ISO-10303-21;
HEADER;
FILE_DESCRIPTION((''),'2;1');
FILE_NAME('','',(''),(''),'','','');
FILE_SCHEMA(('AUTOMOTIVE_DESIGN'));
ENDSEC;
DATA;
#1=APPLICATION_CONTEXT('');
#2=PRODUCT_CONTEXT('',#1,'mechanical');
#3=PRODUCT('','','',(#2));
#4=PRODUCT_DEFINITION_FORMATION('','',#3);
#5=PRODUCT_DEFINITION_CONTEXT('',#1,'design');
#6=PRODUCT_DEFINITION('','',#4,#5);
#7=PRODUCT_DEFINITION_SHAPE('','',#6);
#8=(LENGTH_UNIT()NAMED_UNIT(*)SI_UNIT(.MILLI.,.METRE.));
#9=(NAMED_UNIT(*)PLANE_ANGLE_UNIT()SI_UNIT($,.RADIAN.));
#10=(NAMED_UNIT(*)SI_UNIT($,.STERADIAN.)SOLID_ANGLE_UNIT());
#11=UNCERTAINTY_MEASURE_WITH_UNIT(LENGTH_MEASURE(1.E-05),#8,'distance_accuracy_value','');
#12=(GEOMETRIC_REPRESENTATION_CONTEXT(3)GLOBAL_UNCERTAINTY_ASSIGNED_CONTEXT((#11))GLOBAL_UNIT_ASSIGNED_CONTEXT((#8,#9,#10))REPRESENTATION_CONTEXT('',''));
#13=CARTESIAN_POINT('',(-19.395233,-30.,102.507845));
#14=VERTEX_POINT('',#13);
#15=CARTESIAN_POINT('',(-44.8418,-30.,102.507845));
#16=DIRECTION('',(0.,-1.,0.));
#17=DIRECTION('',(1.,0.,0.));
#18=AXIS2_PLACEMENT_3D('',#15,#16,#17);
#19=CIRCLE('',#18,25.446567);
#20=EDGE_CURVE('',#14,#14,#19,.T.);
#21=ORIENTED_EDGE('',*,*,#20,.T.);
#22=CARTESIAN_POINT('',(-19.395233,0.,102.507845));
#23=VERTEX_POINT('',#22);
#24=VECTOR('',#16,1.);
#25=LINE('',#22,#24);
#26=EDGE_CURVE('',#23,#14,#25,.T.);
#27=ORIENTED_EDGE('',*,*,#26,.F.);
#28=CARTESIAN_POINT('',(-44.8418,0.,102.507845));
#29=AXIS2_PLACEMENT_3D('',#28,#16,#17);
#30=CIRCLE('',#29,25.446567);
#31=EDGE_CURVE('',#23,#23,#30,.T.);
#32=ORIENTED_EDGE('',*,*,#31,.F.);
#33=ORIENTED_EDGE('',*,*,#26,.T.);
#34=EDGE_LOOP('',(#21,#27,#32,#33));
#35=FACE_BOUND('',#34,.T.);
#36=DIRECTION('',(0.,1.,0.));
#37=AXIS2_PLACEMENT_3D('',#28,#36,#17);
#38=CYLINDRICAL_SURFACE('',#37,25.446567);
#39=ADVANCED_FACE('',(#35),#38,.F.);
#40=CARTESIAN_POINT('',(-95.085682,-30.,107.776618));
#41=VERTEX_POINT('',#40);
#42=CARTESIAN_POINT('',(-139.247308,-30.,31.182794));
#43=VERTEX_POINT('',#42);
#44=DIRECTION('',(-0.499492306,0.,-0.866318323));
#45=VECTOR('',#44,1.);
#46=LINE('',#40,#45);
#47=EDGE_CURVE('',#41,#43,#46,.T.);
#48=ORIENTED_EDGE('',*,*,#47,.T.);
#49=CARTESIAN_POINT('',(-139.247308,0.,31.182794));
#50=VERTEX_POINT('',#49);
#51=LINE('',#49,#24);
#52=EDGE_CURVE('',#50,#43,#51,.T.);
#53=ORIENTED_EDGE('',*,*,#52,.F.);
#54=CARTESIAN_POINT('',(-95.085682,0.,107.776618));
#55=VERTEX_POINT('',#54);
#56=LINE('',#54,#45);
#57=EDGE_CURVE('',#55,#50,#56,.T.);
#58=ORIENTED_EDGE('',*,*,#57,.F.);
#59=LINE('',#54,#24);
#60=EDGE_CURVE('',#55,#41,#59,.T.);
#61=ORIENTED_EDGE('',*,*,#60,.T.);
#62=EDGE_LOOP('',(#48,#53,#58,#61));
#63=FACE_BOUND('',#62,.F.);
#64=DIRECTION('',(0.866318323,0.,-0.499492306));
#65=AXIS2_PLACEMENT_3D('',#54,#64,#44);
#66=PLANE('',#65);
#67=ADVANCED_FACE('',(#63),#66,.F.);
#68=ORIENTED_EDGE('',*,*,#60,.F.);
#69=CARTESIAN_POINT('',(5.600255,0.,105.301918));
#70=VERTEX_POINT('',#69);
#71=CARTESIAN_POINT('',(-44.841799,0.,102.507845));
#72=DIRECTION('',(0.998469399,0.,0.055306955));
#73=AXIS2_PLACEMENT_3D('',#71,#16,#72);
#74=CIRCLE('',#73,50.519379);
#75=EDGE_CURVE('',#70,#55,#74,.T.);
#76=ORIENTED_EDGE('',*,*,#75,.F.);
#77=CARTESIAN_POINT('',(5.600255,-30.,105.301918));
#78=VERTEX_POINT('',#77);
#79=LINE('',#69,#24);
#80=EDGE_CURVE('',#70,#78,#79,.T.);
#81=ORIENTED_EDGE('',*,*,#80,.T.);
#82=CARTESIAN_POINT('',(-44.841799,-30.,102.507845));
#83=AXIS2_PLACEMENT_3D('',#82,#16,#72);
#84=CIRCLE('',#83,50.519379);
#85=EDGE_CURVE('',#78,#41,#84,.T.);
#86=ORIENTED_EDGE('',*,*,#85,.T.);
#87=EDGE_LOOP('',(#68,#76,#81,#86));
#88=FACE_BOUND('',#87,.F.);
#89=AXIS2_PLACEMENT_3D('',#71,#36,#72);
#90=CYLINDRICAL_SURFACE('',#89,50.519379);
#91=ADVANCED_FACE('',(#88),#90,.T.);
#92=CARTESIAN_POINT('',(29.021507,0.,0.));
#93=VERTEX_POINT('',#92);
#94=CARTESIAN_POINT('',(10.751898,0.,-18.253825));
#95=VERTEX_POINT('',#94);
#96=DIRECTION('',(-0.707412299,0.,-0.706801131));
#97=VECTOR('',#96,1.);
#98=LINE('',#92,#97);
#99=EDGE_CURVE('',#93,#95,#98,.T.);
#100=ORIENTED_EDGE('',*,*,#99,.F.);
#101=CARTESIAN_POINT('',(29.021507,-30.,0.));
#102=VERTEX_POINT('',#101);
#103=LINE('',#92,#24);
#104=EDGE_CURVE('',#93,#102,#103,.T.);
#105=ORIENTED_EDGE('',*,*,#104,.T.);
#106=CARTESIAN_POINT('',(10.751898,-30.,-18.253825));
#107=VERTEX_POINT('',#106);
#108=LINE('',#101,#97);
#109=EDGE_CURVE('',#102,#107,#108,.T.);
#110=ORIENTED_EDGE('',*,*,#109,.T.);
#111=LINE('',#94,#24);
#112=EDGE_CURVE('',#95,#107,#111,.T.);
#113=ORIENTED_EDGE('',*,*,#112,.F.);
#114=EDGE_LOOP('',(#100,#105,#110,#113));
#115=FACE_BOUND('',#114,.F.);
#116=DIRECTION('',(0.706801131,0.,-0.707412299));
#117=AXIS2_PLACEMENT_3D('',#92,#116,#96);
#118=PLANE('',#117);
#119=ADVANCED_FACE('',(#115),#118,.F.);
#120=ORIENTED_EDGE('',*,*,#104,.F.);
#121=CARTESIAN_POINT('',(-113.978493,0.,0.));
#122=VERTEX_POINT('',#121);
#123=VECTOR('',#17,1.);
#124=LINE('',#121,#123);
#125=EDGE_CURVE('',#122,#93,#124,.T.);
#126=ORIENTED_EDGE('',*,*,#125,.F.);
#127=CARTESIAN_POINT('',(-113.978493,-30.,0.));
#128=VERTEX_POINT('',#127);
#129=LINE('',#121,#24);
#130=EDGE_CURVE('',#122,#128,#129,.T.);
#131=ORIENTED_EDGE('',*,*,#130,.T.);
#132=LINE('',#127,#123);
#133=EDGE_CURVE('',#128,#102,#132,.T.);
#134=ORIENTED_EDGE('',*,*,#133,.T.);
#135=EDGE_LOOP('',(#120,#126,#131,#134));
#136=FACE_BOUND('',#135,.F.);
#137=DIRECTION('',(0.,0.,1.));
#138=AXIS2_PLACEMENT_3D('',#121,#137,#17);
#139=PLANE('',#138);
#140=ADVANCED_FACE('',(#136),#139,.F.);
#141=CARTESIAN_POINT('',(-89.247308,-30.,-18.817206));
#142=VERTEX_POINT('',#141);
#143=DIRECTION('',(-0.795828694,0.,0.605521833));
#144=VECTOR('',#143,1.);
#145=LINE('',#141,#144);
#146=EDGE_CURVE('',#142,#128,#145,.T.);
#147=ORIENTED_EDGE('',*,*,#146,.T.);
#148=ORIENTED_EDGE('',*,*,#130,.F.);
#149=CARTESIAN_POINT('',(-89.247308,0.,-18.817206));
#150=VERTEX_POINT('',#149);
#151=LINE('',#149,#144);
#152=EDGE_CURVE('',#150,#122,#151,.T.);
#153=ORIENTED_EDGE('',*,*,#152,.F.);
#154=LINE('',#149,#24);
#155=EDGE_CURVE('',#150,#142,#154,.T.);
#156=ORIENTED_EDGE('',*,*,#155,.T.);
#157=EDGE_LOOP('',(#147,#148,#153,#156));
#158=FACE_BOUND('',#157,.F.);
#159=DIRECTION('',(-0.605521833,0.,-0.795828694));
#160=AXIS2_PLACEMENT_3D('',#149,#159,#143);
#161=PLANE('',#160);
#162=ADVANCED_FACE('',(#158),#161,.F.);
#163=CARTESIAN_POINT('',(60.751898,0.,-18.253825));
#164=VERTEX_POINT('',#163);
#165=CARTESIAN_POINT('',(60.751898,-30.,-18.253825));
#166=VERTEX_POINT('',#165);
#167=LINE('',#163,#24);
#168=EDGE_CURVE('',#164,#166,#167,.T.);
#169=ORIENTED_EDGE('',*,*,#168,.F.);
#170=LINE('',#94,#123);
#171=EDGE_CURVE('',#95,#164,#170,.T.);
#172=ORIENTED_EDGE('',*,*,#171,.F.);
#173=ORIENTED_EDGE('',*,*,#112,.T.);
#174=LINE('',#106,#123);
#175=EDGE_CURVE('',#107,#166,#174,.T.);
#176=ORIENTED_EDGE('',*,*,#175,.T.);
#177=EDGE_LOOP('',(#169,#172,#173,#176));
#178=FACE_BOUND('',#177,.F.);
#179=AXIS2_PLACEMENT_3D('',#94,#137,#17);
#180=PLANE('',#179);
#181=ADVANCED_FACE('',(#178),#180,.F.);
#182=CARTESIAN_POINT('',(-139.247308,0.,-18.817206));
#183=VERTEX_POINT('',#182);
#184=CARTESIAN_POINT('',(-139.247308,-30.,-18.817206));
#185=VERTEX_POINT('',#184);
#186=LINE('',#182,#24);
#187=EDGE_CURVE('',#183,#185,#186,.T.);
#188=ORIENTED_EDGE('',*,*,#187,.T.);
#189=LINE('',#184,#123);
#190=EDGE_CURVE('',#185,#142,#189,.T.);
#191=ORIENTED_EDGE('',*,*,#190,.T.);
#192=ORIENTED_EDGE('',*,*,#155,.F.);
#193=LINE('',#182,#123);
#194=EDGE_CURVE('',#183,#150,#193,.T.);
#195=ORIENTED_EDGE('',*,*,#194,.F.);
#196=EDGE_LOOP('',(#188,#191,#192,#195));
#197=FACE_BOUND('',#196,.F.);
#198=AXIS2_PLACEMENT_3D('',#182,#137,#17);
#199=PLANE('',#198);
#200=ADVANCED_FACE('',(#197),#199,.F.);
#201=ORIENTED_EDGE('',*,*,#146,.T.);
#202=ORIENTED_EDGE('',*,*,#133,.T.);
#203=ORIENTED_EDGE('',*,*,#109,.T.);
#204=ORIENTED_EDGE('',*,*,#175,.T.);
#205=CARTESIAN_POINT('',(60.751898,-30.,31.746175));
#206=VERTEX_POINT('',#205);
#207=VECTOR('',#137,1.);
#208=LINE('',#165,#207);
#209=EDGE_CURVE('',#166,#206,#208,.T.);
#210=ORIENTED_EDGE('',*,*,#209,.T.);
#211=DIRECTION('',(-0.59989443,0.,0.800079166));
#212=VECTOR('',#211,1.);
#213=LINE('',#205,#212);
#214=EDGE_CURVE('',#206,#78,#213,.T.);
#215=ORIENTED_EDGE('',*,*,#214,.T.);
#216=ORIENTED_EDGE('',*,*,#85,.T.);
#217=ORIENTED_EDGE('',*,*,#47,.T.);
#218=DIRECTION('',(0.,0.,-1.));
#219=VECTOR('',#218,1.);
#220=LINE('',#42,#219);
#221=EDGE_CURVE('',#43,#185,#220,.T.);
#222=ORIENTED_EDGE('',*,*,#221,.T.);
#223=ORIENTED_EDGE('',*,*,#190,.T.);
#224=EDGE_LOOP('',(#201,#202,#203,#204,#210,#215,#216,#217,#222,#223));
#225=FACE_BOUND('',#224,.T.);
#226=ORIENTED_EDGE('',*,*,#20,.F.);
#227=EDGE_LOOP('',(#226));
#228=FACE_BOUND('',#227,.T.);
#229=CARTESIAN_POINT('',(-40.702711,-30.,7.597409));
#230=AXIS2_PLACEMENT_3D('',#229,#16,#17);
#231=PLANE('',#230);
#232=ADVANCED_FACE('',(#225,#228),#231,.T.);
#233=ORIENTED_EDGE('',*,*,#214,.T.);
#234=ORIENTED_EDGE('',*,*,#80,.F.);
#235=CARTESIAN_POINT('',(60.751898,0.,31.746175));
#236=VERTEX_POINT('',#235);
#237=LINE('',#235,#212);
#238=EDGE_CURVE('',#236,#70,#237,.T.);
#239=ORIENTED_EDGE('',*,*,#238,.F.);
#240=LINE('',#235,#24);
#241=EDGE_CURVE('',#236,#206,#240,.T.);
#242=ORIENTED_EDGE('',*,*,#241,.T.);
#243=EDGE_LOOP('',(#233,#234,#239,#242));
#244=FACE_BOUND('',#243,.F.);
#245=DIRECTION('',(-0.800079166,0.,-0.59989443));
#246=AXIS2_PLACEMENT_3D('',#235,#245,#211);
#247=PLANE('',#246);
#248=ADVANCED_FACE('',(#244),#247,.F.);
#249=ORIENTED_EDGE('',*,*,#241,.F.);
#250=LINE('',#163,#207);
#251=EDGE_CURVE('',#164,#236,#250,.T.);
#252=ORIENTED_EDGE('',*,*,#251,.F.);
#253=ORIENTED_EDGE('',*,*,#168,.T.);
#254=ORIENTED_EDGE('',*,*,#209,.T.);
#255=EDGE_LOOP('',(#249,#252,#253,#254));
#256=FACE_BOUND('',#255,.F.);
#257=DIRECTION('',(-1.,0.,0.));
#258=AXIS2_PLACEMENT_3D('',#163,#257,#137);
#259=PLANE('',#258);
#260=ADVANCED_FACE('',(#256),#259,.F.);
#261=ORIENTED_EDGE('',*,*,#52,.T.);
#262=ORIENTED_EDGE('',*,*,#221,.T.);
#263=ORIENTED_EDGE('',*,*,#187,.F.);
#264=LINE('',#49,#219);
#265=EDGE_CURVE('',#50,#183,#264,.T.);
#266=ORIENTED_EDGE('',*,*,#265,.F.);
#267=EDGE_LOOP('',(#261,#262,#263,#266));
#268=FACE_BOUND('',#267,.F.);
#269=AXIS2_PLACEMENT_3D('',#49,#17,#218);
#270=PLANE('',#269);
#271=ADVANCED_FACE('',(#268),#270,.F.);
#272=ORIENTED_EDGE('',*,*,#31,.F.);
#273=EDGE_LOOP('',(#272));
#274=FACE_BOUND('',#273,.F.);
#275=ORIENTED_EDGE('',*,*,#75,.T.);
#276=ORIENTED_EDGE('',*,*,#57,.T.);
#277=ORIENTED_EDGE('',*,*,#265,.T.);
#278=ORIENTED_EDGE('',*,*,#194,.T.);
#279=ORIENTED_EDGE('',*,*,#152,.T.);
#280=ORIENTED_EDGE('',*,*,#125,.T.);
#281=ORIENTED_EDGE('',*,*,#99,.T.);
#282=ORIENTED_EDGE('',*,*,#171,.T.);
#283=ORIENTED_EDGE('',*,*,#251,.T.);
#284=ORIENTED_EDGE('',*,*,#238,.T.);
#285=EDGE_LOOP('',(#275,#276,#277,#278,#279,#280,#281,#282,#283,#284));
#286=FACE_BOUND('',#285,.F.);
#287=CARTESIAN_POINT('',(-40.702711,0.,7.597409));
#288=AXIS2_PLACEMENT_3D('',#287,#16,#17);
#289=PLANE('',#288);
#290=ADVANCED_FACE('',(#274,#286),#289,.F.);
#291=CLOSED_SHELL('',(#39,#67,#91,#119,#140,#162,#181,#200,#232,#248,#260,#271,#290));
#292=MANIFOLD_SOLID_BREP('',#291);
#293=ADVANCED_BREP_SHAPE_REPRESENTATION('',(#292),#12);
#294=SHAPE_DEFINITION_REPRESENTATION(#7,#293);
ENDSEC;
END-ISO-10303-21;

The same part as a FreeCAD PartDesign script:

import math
import FreeCAD as App
import Part
import Sketcher
from FreeCAD import Vector
Q = App.Units.Quantity

doc = App.newDocument("Part")
body = doc.addObject("PartDesign::Body", "Body")

sketch1 = doc.addObject("Sketcher::SketchObject", "Sketch")
body.addObject(sketch1)
sketch1.AttachmentSupport = (doc.XZ_Plane, [""])
sketch1.MapMode = "FlatFace"
sketch1.addGeometry([
    Part.LineSegment(Vector(-139, 31, 0), Vector(-139, -19, 0)),
    Part.LineSegment(Vector(-139, -19, 0), Vector(-89, -19, 0)),
    Part.LineSegment(Vector(-89, -19, 0), Vector(-114, 0, 0)),
    Part.LineSegment(Vector(-114, 0, 0), Vector(29, 0, 0)),
    Part.LineSegment(Vector(29, 0, 0), Vector(11, -18, 0)),
    Part.LineSegment(Vector(11, -18, 0), Vector(61, -18, 0)),
    Part.LineSegment(Vector(61, -18, 0), Vector(61, 32, 0)),
    Part.LineSegment(Vector(61, 32, 0), Vector(6, 105, 0)),
    Part.ArcOfCircle(Part.Circle(Vector(-45, 103, 0), Vector(0, 0, 1), 51), math.radians(3), math.radians(174)),
    Part.LineSegment(Vector(-95, 108, 0), Vector(-139, 31, 0)),
    Part.Circle(Vector(-45, 103, 0), Vector(0, 0, 1), 25),
], False)
sketch1.addConstraint([
    Sketcher.Constraint("Coincident", 0, 2, 1, 1),
    Sketcher.Constraint("Coincident", 1, 2, 2, 1),
    Sketcher.Constraint("Coincident", 2, 2, 3, 1),
    Sketcher.Constraint("Coincident", 3, 2, 4, 1),
    Sketcher.Constraint("Coincident", 4, 2, 5, 1),
    Sketcher.Constraint("Coincident", 5, 2, 6, 1),
    Sketcher.Constraint("Coincident", 6, 2, 7, 1),
    Sketcher.Constraint("Coincident", 7, 2, 8, 1),
    Sketcher.Constraint("Coincident", 8, 2, 9, 1),
    Sketcher.Constraint("Coincident", 9, 2, 0, 1),
    Sketcher.Constraint("Vertical", 0),
    Sketcher.Constraint("Horizontal", 1),
    Sketcher.Constraint("Horizontal", 3),
    Sketcher.Constraint("Horizontal", 5),
    Sketcher.Constraint("Vertical", 6),
    Sketcher.Constraint("Coincident", 10, 3, 8, 3),
    Sketcher.Constraint("PointOnObject", 2, 2, -1),
    Sketcher.Constraint("Equal", 1, 5),
    Sketcher.Constraint("Equal", 5, 0),
    Sketcher.Constraint("Equal", 0, 6),
    Sketcher.Constraint("DistanceX", 1, 1, 1, 2, Q("50 mm")),
    Sketcher.Constraint("DistanceX", 3, 1, 3, 2, Q("143 mm")),
    Sketcher.Constraint("Radius", 8, Q("50.519379 mm")),
    Sketcher.Constraint("Diameter", 10, Q("50.893134 mm")),
    Sketcher.Constraint("DistanceX", 8, 3, -1, 1, Q("44.841799 mm")),
    Sketcher.Constraint("DistanceX", -1, 1, 4, 2, Q("10.751898 mm")),
    Sketcher.Constraint("DistanceY", 7, 2, 8, 2, Q("2.4747 mm")),
    Sketcher.Constraint("Distance", 4, Q("25.82597 mm")),
    Sketcher.Constraint("Distance", 7, Q("91.935581 mm")),
    Sketcher.Constraint("DistanceX", 0, 2, -1, 1, Q("139.247308 mm")),
    Sketcher.Constraint("DistanceY", -1, 1, 7, 2, Q("105.301918 mm")),
    Sketcher.Constraint("DistanceX", 8, 2, -1, 1, Q("95.085682 mm")),
    Sketcher.Constraint("DistanceY", 0, 2, 10, 3, Q("121.325051 mm")),
])
pad1 = doc.addObject("PartDesign::Pad", "Pad")
body.addObject(pad1)
pad1.Profile = sketch1
pad1.Length = 30

doc.recompute()
